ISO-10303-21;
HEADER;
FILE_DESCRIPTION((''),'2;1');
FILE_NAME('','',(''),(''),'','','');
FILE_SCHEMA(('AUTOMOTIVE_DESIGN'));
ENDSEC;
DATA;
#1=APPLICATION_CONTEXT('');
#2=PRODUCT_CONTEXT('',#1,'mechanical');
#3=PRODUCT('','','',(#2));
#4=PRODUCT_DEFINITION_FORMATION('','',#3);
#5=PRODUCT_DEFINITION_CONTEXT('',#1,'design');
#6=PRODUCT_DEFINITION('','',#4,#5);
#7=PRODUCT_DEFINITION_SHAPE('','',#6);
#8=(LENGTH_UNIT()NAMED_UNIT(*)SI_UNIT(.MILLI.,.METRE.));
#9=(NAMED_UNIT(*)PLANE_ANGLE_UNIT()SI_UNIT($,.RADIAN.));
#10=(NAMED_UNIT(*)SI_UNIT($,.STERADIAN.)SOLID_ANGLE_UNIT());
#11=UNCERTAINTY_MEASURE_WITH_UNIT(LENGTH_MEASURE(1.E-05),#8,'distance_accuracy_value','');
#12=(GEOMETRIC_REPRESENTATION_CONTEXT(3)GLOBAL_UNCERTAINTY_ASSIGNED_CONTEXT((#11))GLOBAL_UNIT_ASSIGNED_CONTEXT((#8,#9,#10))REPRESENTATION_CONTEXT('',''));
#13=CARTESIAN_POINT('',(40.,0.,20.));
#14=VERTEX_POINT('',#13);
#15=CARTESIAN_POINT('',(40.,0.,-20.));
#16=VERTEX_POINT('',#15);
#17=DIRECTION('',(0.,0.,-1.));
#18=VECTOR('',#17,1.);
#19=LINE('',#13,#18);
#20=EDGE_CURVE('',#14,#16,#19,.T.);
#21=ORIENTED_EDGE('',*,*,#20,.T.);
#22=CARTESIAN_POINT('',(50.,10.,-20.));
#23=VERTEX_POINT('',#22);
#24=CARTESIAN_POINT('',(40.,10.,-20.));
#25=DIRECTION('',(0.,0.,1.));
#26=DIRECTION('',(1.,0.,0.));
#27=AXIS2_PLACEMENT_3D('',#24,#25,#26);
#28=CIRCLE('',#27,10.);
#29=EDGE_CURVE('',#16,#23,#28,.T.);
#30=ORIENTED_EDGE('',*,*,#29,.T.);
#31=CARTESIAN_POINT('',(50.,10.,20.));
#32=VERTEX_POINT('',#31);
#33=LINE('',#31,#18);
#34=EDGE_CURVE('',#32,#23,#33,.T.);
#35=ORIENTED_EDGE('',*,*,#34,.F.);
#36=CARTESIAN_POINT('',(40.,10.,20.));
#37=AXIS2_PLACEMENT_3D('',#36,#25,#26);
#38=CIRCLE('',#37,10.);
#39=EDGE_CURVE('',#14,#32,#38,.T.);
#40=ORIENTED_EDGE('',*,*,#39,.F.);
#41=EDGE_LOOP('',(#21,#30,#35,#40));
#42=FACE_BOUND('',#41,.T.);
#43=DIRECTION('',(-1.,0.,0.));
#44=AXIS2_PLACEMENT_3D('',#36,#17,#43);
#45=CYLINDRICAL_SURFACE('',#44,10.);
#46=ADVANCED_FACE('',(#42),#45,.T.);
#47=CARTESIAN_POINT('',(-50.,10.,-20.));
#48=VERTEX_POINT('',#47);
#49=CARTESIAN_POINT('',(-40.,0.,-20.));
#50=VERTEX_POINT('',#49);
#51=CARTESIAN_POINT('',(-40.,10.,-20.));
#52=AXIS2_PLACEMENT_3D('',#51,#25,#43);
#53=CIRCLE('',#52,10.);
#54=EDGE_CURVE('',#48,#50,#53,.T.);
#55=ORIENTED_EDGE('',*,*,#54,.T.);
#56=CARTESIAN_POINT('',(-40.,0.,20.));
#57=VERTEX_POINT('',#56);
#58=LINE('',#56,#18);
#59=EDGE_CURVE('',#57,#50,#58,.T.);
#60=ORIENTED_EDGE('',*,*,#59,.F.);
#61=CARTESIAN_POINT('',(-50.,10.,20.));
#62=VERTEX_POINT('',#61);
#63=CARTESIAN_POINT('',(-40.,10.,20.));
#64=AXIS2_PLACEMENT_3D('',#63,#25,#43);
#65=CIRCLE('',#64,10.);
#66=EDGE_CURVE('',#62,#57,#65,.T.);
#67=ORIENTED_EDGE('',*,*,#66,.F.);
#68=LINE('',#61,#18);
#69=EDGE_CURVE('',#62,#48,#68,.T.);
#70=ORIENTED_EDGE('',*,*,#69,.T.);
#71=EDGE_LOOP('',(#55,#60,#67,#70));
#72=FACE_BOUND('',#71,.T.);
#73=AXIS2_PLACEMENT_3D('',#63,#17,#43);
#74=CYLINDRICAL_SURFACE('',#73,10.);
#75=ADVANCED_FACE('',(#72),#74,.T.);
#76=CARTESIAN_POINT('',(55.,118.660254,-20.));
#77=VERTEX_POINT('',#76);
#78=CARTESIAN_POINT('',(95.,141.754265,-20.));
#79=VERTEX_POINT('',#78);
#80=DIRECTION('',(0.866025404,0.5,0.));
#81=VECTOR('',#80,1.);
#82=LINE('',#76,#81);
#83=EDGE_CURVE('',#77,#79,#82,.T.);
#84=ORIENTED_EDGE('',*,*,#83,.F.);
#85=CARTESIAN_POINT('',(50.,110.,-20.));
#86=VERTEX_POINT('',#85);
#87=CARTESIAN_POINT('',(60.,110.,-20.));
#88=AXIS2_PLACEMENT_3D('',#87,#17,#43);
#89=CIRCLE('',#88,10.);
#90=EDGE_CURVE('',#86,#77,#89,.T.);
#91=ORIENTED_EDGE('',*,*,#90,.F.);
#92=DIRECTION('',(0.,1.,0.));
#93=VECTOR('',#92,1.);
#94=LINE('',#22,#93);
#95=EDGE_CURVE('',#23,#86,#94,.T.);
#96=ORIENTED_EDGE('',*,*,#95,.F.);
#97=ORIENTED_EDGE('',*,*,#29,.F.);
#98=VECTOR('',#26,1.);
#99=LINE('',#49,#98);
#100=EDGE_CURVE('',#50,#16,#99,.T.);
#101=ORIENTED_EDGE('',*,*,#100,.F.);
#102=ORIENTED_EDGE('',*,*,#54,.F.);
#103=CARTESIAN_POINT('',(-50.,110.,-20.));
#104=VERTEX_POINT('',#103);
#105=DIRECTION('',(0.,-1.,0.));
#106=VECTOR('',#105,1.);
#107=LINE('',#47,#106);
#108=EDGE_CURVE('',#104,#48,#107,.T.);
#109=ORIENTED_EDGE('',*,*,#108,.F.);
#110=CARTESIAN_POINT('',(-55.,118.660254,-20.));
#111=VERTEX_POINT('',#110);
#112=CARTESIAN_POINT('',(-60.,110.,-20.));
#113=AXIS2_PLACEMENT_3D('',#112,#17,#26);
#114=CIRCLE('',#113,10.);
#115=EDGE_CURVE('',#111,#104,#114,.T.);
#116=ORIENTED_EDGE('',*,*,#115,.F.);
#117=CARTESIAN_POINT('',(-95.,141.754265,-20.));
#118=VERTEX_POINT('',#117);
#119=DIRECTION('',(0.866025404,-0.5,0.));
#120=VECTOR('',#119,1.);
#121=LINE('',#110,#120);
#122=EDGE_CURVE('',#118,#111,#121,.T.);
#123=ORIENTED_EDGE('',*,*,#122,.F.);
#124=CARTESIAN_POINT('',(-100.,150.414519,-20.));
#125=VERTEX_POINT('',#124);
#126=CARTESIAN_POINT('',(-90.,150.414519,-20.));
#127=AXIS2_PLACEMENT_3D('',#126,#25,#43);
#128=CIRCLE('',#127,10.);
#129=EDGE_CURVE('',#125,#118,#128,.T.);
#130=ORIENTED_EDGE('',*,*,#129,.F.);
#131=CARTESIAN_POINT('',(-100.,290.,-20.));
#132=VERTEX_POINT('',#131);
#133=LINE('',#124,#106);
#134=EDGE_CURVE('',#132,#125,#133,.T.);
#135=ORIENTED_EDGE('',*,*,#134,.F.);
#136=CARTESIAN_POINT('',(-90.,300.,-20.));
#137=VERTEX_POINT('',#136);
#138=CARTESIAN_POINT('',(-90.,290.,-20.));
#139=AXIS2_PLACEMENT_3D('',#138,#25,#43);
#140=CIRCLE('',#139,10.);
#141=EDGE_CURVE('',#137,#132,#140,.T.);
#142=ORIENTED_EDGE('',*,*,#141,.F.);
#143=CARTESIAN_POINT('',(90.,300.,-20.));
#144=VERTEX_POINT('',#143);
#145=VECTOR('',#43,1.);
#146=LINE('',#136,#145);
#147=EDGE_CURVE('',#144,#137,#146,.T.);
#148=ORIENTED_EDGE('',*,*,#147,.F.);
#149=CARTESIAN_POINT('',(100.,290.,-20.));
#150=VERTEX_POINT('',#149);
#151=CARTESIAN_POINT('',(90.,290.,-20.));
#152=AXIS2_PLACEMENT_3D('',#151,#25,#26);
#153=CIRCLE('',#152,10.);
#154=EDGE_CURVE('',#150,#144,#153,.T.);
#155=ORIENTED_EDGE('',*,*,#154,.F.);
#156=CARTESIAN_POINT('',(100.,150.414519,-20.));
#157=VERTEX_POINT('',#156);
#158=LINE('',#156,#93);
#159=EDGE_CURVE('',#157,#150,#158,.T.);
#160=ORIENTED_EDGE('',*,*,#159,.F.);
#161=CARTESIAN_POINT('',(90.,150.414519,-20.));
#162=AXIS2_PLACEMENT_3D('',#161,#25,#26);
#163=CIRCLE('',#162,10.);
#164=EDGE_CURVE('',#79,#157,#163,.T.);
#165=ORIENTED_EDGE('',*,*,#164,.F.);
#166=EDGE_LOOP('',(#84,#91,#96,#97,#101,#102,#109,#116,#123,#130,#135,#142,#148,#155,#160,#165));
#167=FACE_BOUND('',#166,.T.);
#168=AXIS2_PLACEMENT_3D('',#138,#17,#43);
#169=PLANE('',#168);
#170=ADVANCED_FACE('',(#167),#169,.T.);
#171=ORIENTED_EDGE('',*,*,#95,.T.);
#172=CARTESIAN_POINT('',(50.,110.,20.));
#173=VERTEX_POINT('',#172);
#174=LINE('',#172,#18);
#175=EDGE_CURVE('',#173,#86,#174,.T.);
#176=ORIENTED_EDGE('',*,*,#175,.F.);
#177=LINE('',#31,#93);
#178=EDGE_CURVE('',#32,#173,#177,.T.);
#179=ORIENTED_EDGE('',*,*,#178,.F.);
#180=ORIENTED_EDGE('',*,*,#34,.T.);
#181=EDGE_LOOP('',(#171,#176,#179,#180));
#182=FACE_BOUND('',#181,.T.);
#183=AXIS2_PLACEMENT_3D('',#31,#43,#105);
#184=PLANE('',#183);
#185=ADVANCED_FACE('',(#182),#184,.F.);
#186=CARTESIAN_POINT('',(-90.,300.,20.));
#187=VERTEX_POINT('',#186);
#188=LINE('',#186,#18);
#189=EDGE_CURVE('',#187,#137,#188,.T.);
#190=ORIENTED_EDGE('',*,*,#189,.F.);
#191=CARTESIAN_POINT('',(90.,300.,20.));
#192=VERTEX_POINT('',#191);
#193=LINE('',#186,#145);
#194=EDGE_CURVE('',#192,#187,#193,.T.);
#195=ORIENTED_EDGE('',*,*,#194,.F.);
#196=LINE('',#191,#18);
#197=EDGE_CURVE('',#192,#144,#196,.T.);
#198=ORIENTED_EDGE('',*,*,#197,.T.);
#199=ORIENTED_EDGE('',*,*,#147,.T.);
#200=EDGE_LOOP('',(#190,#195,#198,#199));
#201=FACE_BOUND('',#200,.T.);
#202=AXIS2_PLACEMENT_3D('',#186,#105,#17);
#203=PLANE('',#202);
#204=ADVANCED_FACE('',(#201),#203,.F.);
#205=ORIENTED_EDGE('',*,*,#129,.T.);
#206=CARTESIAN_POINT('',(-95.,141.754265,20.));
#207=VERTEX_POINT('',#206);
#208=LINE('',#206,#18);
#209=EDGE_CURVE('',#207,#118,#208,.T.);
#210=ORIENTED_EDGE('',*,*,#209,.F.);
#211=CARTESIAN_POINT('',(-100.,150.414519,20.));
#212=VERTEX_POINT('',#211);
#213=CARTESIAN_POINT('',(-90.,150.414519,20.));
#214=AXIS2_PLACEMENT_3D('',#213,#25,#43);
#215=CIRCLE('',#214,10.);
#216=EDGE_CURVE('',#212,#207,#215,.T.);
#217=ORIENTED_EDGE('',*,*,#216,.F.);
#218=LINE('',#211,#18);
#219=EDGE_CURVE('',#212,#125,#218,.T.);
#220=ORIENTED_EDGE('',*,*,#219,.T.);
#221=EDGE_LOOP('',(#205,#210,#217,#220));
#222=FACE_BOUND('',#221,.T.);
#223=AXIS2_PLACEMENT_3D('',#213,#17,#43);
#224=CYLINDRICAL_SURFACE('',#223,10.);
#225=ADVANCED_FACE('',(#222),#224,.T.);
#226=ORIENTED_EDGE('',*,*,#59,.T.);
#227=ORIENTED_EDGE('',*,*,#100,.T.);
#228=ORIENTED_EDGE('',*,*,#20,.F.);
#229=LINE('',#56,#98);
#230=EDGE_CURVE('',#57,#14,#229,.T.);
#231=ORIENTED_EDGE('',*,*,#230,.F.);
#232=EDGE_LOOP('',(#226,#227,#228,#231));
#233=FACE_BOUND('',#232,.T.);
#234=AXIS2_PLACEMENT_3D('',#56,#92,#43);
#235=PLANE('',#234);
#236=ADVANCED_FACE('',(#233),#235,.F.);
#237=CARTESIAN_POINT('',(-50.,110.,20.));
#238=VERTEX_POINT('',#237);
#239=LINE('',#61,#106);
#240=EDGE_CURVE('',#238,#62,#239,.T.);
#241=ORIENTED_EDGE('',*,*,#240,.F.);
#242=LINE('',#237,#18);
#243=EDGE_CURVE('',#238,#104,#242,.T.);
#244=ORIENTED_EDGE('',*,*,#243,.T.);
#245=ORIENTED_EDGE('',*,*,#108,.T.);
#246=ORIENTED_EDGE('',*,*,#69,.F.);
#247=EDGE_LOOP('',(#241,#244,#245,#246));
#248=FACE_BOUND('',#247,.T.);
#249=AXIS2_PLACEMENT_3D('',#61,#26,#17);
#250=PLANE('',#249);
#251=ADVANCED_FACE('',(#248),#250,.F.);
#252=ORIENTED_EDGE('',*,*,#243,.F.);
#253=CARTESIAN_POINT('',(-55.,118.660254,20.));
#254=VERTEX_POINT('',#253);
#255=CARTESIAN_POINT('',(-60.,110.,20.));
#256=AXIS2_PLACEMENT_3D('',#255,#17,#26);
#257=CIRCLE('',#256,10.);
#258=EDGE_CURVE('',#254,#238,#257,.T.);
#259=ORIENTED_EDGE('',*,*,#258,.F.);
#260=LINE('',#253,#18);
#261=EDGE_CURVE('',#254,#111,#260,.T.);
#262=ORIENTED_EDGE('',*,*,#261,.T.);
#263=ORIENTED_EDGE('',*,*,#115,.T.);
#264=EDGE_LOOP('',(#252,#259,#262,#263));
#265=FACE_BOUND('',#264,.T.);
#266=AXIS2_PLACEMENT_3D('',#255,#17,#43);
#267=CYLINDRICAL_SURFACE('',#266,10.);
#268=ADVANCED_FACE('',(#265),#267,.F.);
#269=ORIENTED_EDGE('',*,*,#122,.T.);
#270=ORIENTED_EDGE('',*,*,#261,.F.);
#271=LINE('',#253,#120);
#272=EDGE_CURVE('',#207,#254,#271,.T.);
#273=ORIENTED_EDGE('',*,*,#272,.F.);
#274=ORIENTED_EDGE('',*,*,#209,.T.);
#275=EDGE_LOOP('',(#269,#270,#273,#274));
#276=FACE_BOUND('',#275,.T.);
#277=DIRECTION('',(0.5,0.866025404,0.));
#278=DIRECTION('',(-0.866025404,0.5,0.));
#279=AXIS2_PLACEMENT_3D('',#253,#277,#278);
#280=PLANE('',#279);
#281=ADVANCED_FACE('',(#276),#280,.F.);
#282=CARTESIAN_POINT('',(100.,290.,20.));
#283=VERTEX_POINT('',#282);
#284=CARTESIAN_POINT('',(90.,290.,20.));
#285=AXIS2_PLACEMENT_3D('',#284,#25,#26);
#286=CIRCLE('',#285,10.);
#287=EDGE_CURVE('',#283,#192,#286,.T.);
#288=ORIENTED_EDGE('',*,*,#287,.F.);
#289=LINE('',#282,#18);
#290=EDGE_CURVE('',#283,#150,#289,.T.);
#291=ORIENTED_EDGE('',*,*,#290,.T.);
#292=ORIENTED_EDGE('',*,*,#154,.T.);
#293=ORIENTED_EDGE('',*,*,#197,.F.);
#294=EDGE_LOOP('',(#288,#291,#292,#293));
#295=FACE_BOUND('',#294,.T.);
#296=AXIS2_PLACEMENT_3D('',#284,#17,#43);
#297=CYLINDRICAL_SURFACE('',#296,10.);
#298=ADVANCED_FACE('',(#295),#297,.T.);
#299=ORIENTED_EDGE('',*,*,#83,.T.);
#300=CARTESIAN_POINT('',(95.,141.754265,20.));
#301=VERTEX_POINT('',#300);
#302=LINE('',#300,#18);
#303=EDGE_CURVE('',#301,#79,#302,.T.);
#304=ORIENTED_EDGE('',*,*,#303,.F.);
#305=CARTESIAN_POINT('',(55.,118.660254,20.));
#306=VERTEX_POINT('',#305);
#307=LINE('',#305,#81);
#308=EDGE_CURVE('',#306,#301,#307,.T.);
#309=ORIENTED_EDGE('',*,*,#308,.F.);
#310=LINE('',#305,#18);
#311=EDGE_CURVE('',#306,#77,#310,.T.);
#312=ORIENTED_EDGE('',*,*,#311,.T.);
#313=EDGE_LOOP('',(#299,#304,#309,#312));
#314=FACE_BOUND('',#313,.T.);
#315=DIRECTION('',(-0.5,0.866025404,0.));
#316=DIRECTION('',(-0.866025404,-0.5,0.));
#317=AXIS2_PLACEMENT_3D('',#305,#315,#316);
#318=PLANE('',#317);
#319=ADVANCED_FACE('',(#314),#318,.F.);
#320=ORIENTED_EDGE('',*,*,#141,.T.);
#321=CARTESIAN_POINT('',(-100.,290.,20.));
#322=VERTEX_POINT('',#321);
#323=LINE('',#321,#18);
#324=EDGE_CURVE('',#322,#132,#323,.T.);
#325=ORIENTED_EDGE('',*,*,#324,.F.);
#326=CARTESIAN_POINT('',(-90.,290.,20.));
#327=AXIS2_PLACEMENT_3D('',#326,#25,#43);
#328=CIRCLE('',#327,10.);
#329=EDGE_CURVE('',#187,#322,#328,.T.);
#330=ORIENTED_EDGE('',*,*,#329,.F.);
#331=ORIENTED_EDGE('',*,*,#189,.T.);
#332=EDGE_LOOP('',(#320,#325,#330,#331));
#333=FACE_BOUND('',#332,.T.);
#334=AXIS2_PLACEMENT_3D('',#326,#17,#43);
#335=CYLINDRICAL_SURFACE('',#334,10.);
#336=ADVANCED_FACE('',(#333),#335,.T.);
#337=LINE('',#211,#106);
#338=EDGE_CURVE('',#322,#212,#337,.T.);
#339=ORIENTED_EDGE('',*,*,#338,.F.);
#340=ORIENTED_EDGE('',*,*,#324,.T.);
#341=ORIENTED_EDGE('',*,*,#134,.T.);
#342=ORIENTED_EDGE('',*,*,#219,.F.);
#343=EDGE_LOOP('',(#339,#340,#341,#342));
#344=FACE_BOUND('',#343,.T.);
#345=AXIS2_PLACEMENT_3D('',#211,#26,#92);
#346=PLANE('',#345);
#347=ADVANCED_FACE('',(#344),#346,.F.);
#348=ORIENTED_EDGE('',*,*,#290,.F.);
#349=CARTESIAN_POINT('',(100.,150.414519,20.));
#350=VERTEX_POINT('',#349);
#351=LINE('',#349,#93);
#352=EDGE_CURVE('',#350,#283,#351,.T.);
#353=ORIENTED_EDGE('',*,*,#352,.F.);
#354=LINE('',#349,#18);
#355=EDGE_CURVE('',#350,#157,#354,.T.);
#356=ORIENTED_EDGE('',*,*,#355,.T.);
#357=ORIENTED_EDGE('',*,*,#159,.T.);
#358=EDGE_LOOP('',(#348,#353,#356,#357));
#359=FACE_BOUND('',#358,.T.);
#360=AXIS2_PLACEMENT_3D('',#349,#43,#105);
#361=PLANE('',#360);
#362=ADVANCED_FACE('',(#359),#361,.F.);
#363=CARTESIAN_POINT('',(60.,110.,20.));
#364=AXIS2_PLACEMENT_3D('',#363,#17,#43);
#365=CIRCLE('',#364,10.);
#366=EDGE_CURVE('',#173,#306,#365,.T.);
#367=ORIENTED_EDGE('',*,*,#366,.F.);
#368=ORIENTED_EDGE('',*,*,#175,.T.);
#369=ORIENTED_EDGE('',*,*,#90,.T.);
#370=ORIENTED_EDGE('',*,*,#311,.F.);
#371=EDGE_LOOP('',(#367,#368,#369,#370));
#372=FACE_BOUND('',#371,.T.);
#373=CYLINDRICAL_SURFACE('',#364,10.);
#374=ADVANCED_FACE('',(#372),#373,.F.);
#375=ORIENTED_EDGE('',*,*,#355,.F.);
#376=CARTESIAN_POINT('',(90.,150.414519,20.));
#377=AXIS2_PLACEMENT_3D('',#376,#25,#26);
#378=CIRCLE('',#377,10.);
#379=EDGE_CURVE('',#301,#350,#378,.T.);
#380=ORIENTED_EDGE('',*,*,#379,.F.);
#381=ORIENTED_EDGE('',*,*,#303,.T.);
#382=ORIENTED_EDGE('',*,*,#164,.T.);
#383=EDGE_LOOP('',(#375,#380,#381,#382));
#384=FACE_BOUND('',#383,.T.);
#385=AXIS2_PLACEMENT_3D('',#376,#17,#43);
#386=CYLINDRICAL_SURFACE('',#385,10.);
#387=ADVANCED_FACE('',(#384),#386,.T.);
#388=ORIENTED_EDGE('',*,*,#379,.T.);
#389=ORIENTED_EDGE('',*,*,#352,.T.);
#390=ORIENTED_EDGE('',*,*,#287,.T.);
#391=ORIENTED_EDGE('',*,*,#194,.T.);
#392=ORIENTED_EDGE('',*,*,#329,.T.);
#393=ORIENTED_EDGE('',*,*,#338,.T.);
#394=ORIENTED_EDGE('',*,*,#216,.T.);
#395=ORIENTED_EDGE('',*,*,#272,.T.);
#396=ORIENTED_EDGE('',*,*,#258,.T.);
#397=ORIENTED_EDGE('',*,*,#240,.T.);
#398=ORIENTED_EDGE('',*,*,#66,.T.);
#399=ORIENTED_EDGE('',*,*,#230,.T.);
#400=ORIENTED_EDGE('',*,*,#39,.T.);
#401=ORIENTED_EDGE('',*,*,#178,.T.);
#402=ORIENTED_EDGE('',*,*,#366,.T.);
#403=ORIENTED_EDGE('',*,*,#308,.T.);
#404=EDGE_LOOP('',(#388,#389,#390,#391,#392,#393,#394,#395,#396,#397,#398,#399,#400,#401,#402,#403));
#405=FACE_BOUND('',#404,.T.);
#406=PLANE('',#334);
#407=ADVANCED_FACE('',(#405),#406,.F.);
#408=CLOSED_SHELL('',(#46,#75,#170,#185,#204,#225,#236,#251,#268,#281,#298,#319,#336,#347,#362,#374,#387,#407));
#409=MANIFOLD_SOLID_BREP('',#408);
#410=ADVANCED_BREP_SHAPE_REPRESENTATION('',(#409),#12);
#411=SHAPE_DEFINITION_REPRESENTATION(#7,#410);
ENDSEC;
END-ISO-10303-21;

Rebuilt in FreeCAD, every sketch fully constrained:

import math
import FreeCAD as App
import Part
import Sketcher

V = App.Vector
Q = App.Units.Quantity

doc = App.newDocument("Part")
body = doc.addObject("PartDesign::Body", "Body")

# Sketch on XY plane
sketch1 = doc.addObject("Sketcher::SketchObject", "Sketch")
body.addObject(sketch1)
sketch1.AttachmentSupport = (doc.XY_Plane, [""])
sketch1.MapMode = "FlatFace"
sketch1.addGeometry(Part.LineSegment(V(-40, 0, 0), V(40, 0, 0)), False)
sketch1.addGeometry(Part.ArcOfCircle(Part.Circle(V(40, 10, 0), V(0, 0, 1), 10), math.radians(-90), math.radians(0)), False)
sketch1.addGeometry(Part.LineSegment(V(50, 10, 0), V(50, 110, 0)), False)
sketch1.addGeometry(Part.ArcOfCircle(Part.Circle(V(60, 110, 0), V(0, 0, 1), 10), math.radians(120), math.radians(180)), False)
sketch1.addGeometry(Part.LineSegment(V(55, 118.660254, 0), V(95, 141.754265, 0)), False)
sketch1.addGeometry(Part.ArcOfCircle(Part.Circle(V(90, 150.414519, 0), V(0, 0, 1), 10), math.radians(-60), math.radians(0)), False)
sketch1.addGeometry(Part.LineSegment(V(100, 150.414519, 0), V(100, 290, 0)), False)
sketch1.addGeometry(Part.ArcOfCircle(Part.Circle(V(90, 290, 0), V(0, 0, 1), 10), math.radians(0), math.radians(90)), False)
sketch1.addGeometry(Part.LineSegment(V(90, 300, 0), V(-90, 300, 0)), False)
sketch1.addGeometry(Part.ArcOfCircle(Part.Circle(V(-90, 290, 0), V(0, 0, 1), 10), math.radians(90), math.radians(180)), False)
sketch1.addGeometry(Part.LineSegment(V(-100, 290, 0), V(-100, 150.414519, 0)), False)
sketch1.addGeometry(Part.ArcOfCircle(Part.Circle(V(-90, 150.414519, 0), V(0, 0, 1), 10), math.radians(180), math.radians(240)), False)
sketch1.addGeometry(Part.LineSegment(V(-95, 141.754265, 0), V(-55, 118.660254, 0)), False)
sketch1.addGeometry(Part.ArcOfCircle(Part.Circle(V(-60, 110, 0), V(0, 0, 1), 10), math.radians(0), math.radians(60)), False)
sketch1.addGeometry(Part.LineSegment(V(-50, 110, 0), V(-50, 10, 0)), False)
sketch1.addGeometry(Part.ArcOfCircle(Part.Circle(V(-40, 10, 0), V(0, 0, 1), 10), math.radians(180), math.radians(270)), False)
sketch1.addConstraint(Sketcher.Constraint("Tangent", 0, 2, 1, 1))
sketch1.addConstraint(Sketcher.Constraint("Tangent", 1, 2, 2, 1))
sketch1.addConstraint(Sketcher.Constraint("Tangent", 2, 2, 3, 2))
sketch1.addConstraint(Sketcher.Constraint("Tangent", 3, 1, 4, 1))
sketch1.addConstraint(Sketcher.Constraint("Tangent", 4, 2, 5, 1))
sketch1.addConstraint(Sketcher.Constraint("Tangent", 5, 2, 6, 1))
sketch1.addConstraint(Sketcher.Constraint("Tangent", 6, 2, 7, 1))
sketch1.addConstraint(Sketcher.Constraint("Tangent", 7, 2, 8, 1))
sketch1.addConstraint(Sketcher.Constraint("Tangent", 8, 2, 9, 1))
sketch1.addConstraint(Sketcher.Constraint("Tangent", 9, 2, 10, 1))
sketch1.addConstraint(Sketcher.Constraint("Tangent", 10, 2, 11, 1))
sketch1.addConstraint(Sketcher.Constraint("Tangent", 11, 2, 12, 1))
sketch1.addConstraint(Sketcher.Constraint("Tangent", 12, 2, 13, 2))
sketch1.addConstraint(Sketcher.Constraint("Tangent", 13, 1, 14, 1))
sketch1.addConstraint(Sketcher.Constraint("Tangent", 14, 2, 15, 1))
sketch1.addConstraint(Sketcher.Constraint("Tangent", 15, 2, 0, 1))
sketch1.addConstraint(Sketcher.Constraint("Horizontal", 0))
sketch1.addConstraint(Sketcher.Constraint("Vertical", 2))
sketch1.addConstraint(Sketcher.Constraint("Vertical", 6))
sketch1.addConstraint(Sketcher.Constraint("Horizontal", 8))
sketch1.addConstraint(Sketcher.Constraint("Vertical", 10))
sketch1.addConstraint(Sketcher.Constraint("Vertical", 14))
sketch1.addConstraint(Sketcher.Constraint("Equal", 1, 3))
sketch1.addConstraint(Sketcher.Constraint("Equal", 3, 5))
sketch1.addConstraint(Sketcher.Constraint("Equal", 5, 7))
sketch1.addConstraint(Sketcher.Constraint("Equal", 7, 9))
sketch1.addConstraint(Sketcher.Constraint("Equal", 9, 11))
sketch1.addConstraint(Sketcher.Constraint("Equal", 11, 13))
sketch1.addConstraint(Sketcher.Constraint("Equal", 13, 15))
sketch1.addConstraint(Sketcher.Constraint("Symmetric", 0, 2, 15, 2, -1, 1))
sketch1.addConstraint(Sketcher.Constraint("Symmetric", 5, 3, 11, 3, -2))
sketch1.addConstraint(Sketcher.Constraint("Horizontal", 3, 3, 13, 3))
sketch1.addConstraint(Sketcher.Constraint("Radius", 1, Q("10 mm")))
sketch1.addConstraint(Sketcher.Constraint("DistanceX", 0, 1, 0, 2, Q("80 mm")))
sketch1.addConstraint(Sketcher.Constraint("DistanceX", 8, 2, 8, 1, Q("180 mm")))
sketch1.addConstraint(Sketcher.Constraint("DistanceY", 2, 1, 2, 2, Q("100 mm")))
sketch1.addConstraint(Sketcher.Constraint("Angle", 4, Q("30 deg")))
sketch1.addConstraint(Sketcher.Constraint("DistanceY", -1, 1, 7, 3, Q("290 mm")))
pad1 = doc.addObject("PartDesign::Pad", "Pad")
body.addObject(pad1)
pad1.Profile = sketch1
pad1.Length = 40
pad1.Midplane = True

doc.recompute()
